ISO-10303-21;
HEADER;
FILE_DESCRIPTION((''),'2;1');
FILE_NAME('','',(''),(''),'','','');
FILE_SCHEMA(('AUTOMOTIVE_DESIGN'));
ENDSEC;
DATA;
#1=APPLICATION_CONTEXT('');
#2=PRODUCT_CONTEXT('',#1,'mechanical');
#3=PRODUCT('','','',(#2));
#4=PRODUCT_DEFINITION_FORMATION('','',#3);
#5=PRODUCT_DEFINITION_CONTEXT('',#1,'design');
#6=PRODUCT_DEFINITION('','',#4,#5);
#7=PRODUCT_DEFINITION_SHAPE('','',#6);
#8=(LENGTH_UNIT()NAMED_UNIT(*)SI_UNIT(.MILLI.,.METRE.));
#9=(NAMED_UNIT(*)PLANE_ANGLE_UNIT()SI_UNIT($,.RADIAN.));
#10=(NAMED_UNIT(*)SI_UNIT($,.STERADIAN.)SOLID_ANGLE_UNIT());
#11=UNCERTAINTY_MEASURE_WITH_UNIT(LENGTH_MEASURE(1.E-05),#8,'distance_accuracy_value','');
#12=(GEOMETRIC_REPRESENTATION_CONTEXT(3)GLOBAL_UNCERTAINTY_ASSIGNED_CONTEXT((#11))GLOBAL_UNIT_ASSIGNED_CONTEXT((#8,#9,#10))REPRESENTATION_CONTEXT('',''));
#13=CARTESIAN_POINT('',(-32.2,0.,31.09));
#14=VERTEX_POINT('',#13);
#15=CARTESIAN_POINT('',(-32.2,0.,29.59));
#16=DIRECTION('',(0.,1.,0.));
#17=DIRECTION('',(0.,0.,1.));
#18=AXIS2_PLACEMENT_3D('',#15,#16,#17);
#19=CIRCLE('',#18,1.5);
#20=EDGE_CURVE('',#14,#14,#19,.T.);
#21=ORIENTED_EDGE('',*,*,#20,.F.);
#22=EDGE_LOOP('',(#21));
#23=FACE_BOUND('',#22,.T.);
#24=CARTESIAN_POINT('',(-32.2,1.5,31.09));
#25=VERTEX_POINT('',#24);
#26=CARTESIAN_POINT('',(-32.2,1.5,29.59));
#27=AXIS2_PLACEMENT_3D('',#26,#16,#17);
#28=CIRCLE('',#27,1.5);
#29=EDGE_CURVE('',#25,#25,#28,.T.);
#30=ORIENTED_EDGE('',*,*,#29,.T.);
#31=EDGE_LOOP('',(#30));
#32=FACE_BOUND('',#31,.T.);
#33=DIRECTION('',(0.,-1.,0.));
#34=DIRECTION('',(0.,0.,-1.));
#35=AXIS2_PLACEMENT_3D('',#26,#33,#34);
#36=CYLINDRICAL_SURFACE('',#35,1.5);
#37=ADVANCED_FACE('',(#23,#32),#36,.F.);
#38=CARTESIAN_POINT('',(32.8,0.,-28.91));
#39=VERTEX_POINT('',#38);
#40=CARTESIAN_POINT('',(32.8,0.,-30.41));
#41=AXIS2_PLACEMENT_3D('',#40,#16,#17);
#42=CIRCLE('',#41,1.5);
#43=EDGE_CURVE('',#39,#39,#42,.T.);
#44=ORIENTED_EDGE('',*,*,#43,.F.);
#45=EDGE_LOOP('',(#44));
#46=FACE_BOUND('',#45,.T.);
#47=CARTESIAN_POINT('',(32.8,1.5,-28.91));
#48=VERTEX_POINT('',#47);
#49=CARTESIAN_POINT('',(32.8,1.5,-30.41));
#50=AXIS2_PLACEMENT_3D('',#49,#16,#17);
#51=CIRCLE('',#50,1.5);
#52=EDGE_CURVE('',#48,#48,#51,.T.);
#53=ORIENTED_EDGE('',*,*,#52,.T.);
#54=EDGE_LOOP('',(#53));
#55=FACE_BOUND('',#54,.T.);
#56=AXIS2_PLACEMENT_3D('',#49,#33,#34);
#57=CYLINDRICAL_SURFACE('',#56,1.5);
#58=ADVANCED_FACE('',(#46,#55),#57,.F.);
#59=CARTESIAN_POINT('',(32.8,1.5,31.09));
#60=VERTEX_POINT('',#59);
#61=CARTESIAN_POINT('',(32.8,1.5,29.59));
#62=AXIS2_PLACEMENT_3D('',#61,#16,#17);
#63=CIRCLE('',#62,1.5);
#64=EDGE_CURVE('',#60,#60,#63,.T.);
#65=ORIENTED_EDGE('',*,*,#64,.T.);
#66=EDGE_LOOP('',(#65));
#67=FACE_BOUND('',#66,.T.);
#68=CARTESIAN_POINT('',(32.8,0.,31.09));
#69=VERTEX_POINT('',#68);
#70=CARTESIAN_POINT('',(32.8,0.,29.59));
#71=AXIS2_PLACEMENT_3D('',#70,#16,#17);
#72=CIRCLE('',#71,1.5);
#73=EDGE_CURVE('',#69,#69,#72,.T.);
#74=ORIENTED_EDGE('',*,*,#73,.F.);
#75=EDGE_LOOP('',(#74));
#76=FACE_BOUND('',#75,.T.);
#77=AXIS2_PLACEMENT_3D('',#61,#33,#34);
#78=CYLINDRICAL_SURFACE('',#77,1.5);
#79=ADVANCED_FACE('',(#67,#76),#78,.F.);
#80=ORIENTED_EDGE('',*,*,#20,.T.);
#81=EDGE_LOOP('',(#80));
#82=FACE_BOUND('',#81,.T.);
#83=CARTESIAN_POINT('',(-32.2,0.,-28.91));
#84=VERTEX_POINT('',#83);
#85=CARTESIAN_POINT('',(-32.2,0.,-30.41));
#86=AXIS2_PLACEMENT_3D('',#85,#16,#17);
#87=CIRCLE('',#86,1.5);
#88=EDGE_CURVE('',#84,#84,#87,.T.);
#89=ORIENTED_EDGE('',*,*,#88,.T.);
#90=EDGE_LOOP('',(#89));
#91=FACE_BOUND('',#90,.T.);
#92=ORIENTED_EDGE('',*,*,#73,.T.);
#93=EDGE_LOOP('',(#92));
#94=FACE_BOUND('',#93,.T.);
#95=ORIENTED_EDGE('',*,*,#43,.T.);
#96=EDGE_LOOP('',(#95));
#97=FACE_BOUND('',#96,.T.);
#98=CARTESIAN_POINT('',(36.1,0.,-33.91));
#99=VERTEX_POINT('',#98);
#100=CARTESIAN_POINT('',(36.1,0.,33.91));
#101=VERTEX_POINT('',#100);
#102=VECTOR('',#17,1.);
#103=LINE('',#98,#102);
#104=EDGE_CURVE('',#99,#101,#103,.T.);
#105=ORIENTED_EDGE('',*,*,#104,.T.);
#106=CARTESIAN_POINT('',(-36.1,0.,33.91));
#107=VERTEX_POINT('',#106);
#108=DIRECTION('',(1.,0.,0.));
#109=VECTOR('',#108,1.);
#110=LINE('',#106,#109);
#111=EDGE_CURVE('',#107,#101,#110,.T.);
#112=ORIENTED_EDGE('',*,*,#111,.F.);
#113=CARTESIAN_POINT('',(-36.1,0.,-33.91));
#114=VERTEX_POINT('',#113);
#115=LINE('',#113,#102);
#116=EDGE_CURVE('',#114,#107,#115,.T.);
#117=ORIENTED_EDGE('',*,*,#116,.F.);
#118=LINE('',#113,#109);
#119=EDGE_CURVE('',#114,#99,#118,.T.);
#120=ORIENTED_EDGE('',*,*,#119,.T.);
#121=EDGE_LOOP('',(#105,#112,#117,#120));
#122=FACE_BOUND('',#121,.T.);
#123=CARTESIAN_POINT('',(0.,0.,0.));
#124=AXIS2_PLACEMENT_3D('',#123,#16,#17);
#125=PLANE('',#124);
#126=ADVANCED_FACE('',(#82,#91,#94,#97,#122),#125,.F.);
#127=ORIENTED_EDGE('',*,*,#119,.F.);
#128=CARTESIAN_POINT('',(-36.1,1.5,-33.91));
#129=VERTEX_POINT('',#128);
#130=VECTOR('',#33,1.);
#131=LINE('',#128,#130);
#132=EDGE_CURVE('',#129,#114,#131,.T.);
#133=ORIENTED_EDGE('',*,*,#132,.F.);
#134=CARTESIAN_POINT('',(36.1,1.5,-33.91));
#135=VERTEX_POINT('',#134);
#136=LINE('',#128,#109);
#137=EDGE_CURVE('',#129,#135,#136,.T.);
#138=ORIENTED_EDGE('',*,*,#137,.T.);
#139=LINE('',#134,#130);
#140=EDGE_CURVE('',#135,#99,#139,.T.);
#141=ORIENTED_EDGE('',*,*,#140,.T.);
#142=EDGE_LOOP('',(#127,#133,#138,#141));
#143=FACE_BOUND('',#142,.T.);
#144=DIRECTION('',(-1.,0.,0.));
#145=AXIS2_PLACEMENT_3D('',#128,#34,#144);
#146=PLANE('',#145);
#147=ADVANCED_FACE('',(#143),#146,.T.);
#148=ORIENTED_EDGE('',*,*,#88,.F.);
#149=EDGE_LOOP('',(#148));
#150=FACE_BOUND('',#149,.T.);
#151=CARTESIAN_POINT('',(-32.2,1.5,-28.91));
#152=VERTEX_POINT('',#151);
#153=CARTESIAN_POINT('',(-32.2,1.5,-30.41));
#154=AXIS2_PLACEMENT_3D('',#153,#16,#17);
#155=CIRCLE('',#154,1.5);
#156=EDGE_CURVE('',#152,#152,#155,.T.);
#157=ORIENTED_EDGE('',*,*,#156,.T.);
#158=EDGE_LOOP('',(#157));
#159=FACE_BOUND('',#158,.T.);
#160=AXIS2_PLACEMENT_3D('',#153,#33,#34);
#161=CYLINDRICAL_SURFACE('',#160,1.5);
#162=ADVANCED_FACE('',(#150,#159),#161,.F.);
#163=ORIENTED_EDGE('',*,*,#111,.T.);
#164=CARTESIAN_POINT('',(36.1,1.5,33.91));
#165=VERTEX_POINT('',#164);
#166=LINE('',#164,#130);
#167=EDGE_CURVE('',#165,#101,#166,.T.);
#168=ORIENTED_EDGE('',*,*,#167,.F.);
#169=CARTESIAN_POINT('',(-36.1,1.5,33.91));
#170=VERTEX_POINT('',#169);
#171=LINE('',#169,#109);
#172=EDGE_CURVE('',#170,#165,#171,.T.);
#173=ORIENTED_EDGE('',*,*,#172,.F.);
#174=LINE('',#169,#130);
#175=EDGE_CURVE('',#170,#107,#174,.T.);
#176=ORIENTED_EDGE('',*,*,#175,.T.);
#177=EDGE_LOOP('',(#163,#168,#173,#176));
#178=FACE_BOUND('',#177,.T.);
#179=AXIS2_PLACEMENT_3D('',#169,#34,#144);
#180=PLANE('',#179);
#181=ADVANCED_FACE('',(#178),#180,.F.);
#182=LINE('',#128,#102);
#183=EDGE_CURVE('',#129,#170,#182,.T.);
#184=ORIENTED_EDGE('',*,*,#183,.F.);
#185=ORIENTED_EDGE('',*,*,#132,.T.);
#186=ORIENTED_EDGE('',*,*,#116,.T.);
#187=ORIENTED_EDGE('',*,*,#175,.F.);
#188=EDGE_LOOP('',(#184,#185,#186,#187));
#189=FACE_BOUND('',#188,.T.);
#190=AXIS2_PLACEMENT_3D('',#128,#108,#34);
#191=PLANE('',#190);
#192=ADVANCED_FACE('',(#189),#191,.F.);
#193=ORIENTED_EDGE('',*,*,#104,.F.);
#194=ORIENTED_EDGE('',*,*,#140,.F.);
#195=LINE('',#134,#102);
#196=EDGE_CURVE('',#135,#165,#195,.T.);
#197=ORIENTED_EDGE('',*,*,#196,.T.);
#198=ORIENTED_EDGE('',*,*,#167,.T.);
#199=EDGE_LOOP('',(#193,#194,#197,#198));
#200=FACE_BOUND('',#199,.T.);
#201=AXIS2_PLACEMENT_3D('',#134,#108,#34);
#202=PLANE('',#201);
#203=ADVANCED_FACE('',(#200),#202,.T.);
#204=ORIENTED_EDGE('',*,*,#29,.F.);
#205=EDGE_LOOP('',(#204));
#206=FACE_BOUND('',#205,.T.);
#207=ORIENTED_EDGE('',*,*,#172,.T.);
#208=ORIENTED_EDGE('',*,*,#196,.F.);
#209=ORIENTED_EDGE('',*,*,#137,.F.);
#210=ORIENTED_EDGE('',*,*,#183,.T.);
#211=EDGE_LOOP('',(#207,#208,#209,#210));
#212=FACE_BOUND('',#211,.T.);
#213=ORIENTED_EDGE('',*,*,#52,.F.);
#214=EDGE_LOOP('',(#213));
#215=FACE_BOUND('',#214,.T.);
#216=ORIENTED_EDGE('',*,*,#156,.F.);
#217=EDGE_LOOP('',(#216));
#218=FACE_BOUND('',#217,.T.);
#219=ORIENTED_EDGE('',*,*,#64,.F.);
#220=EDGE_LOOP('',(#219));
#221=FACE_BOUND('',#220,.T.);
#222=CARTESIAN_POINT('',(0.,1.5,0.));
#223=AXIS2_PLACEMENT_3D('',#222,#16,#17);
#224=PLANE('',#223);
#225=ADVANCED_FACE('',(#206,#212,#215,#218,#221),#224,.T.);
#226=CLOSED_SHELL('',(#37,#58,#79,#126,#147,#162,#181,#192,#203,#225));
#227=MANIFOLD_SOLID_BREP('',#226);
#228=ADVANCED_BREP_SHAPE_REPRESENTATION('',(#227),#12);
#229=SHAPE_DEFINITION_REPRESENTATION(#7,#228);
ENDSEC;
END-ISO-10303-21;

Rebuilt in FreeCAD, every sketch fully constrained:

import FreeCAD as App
import Part
import Sketcher
Q = App.Units.Quantity


def add_polygon(sketch, points):
    """Adds a closed chain of lines whose ends are joined by coincident constraints."""
    first, n = sketch.GeometryCount, len(points)
    for a, b in zip(points, points[1:] + points[:1]):
        sketch.addGeometry(Part.LineSegment(App.Vector(*a, 0), App.Vector(*b, 0)), False)
    for i in range(n):
        sketch.addConstraint(Sketcher.Constraint("Coincident", first + i, 2, first + (i + 1) % n, 1))

doc = App.newDocument("Part")
params = doc.addObject("Spreadsheet::Sheet", "Params")
for row, (alias, value) in enumerate([
    ("sketch1_diameter", "3 mm"),
    ("sketch1_width", "72.2 mm"),
    ("sketch1_height", "67.82 mm"),
    ("pad1_length", "1.5 mm"),
    ("sketch2_diameter", "3 mm"),
    ("sketch2_width", "60 mm"),
    ("sketch2_height", "30 mm"),
    ("sketch2_width2", "72.2 mm"),
    ("sketch2_height2", "67.82 mm"),
    ("pad2_length", "1.5 mm"),
], start=1):
    params.set(f"A{row}", alias)
    params.set(f"B{row}", "=" + value)
    params.setAlias(f"B{row}", alias)

body = doc.addObject("PartDesign::Body", "Body")

# Sketch on XZ plane
sketch1 = doc.addObject("Sketcher::SketchObject", "Sketch")
body.addObject(sketch1)
sketch1.AttachmentSupport = (doc.XZ_Plane, [""])
sketch1.MapMode = "FlatFace"
add_polygon(sketch1, [(-36.1, -33.9), (-36.1, 33.9), (36.1, 33.9), (36.1, -33.9)])  # lines 0-3
sketch1.addGeometry(Part.Circle(App.Vector(-32.2, 29.6, 0), App.Vector(0, 0, 1), 1.5), False)  # 4
sketch1.addGeometry(Part.Circle(App.Vector(32.8, 29.6, 0), App.Vector(0, 0, 1), 1.5), False)  # 5
sketch1.addGeometry(Part.Circle(App.Vector(-32.2, -30.4, 0), App.Vector(0, 0, 1), 1.5), False)  # 6
sketch1.addGeometry(Part.Circle(App.Vector(32.8, -30.4, 0), App.Vector(0, 0, 1), 1.5), False)  # 7
sketch1.addConstraint([
    Sketcher.Constraint("Vertical", 0),
    Sketcher.Constraint("Horizontal", 1),
    Sketcher.Constraint("Vertical", 2),
    Sketcher.Constraint("Horizontal", 3),
    Sketcher.Constraint("Equal", 4, 5),
    Sketcher.Constraint("Equal", 5, 6),
    Sketcher.Constraint("Equal", 6, 7),
    Sketcher.Constraint("Symmetric", 0, 2, 2, 2, -1, 1),
    Sketcher.Constraint("Horizontal", 4, 3, 5, 3),
    Sketcher.Constraint("Horizontal", 6, 3, 7, 3),
    Sketcher.Constraint("Vertical", 4, 3, 6, 3),
    Sketcher.Constraint("Vertical", 5, 3, 7, 3),
    Sketcher.Constraint("Diameter", 4, Q("3 mm")),
    Sketcher.Constraint("DistanceX", 1, 1, 1, 2, Q("72.2 mm")),
    Sketcher.Constraint("DistanceX", 4, 3, 5, 3, Q("65 mm")),
    Sketcher.Constraint("DistanceY", 6, 3, 4, 3, Q("60 mm")),
    Sketcher.Constraint("DistanceY", 0, 1, 0, 2, Q("67.82 mm")),
    Sketcher.Constraint("DistanceX", 4, 3, -1, 1, Q("32.2 mm")),
    Sketcher.Constraint("DistanceY", 2, 2, 7, 3, Q("3.5 mm")),
])
sketch1.setExpression("Constraints[16]", "Params.sketch1_diameter")
sketch1.setExpression("Constraints[17]", "Params.sketch1_width")
sketch1.setExpression("Constraints[20]", "Params.sketch1_height")
pad1 = doc.addObject("PartDesign::Pad", "Pad")
body.addObject(pad1)
pad1.Profile = sketch1
pad1.setExpression("Length", "Params.pad1_length")
pad1.Reversed = True

# Sketch on XZ plane
sketch2 = doc.addObject("Sketcher::SketchObject", "Sketch001")
body.addObject(sketch2)
sketch2.AttachmentSupport = (doc.XZ_Plane, [""])
sketch2.MapMode = "FlatFace"
add_polygon(sketch2, [(-36.1, -33.9), (-36.1, 33.9), (36.1, 33.9), (36.1, -33.9)])  # lines 0-3
sketch2.addGeometry(Part.Circle(App.Vector(-32.2, 29.6, 0), App.Vector(0, 0, 1), 1.5), False)  # 4
sketch2.addGeometry(Part.Circle(App.Vector(32.8, 29.6, 0), App.Vector(0, 0, 1), 1.5), False)  # 5
add_polygon(sketch2, [(29.7, 11.1), (-30.3, 11.1), (-30.3, -18.9), (29.7, -18.9)])  # lines 6-9
sketch2.addGeometry(Part.Circle(App.Vector(-32.2, -30.4, 0), App.Vector(0, 0, 1), 1.5), False)  # 10
sketch2.addGeometry(Part.Circle(App.Vector(32.8, -30.4, 0), App.Vector(0, 0, 1), 1.5), False)  # 11
sketch2.addConstraint([
    Sketcher.Constraint("Vertical", 0),
    Sketcher.Constraint("Horizontal", 1),
    Sketcher.Constraint("Vertical", 2),
    Sketcher.Constraint("Horizontal", 3),
    Sketcher.Constraint("Horizontal", 6),
    Sketcher.Constraint("Vertical", 7),
    Sketcher.Constraint("Horizontal", 8),
    Sketcher.Constraint("Vertical", 9),
    Sketcher.Constraint("Equal", 4, 5),
    Sketcher.Constraint("Equal", 5, 10),
    Sketcher.Constraint("Equal", 10, 11),
    Sketcher.Constraint("Symmetric", 0, 2, 2, 2, -1, 1),
    Sketcher.Constraint("Horizontal", 4, 3, 5, 3),
    Sketcher.Constraint("Horizontal", 10, 3, 11, 3),
    Sketcher.Constraint("Vertical", 4, 3, 10, 3),
    Sketcher.Constraint("Vertical", 5, 3, 11, 3),
    Sketcher.Constraint("Diameter", 4, Q("3 mm")),
    Sketcher.Constraint("DistanceX", 6, 2, 6, 1, Q("60 mm")),
    Sketcher.Constraint("DistanceY", 7, 2, 7, 1, Q("30 mm")),
    Sketcher.Constraint("DistanceX", 1, 1, 1, 2, Q("72.2 mm")),
    Sketcher.Constraint("DistanceX", 4, 3, 5, 3, Q("65 mm")),
    Sketcher.Constraint("DistanceY", 10, 3, 4, 3, Q("60 mm")),
    Sketcher.Constraint("DistanceY", 3, 2, 6, 2, Q("45 mm")),
    Sketcher.Constraint("DistanceY", 0, 1, 0, 2, Q("67.82 mm")),
    Sketcher.Constraint("DistanceX", 4, 3, -1, 1, Q("32.2 mm")),
    Sketcher.Constraint("DistanceX", 6, 2, -1, 1, Q("30.3 mm")),
    Sketcher.Constraint("DistanceY", 2, 2, 11, 3, Q("3.5 mm")),
])
sketch2.setExpression("Constraints[24]", "Params.sketch2_diameter")
sketch2.setExpression("Constraints[25]", "Params.sketch2_width")
sketch2.setExpression("Constraints[26]", "Params.sketch2_height")
sketch2.setExpression("Constraints[27]", "Params.sketch2_width2")
sketch2.setExpression("Constraints[31]", "Params.sketch2_height2")
pad2 = doc.addObject("PartDesign::Pad", "Pad001")
body.addObject(pad2)
pad2.Profile = sketch2
pad2.setExpression("Length", "Params.pad2_length")
pad2.Reversed = True

doc.recompute()
